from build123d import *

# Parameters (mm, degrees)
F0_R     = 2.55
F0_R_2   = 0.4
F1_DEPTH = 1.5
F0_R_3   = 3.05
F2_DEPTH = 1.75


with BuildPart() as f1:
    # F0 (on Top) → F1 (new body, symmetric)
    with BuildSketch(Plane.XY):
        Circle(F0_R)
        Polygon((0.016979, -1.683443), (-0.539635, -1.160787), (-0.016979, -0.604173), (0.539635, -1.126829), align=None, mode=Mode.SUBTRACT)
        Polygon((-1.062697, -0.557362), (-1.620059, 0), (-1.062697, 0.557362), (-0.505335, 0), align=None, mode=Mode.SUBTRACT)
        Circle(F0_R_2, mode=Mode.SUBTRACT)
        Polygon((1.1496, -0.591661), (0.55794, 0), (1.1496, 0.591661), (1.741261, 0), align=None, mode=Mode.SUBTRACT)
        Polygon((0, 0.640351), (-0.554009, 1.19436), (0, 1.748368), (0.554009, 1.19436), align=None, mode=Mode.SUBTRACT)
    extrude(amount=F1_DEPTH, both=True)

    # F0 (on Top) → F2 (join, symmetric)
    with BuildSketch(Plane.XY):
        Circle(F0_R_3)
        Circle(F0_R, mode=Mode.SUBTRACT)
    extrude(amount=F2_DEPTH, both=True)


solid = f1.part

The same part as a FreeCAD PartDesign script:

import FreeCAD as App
import Part
import Sketcher
from FreeCAD import Vector


def add_polygon(sketch, points):
    """Adds a closed chain of lines whose ends are joined by coincident constraints."""
    first, n = sketch.GeometryCount, len(points)
    for a, b in zip(points, points[1:] + points[:1]):
        sketch.addGeometry(Part.LineSegment(App.Vector(*a, 0), App.Vector(*b, 0)), False)
    for i in range(n):
        sketch.addConstraint(Sketcher.Constraint("Coincident", first + i, 2, first + (i + 1) % n, 1))

doc = App.newDocument("Part")
body = doc.addObject("PartDesign::Body", "Body")

# Sketch on XY plane
sketch1 = body.newObject("Sketcher::SketchObject", "Sketch")
sketch1.AttachmentSupport = (doc.getObject("XY_Plane"), [""])
sketch1.MapMode = "FlatFace"
sketch1.addGeometry(Part.Circle(Vector(0, 0, 0), Vector(0, 0, 1), 2.55), False)  # 0
add_polygon(sketch1, [(0.539635, -1.126829), (0.016979, -1.683443), (-0.539635, -1.160787), (-0.016979, -0.604173)])  # lines 1-4
add_polygon(sketch1, [(-0.505335, 0), (-1.062697, -0.557362), (-1.620059, 0), (-1.062697, 0.557362)])  # lines 5-8
sketch1.addGeometry(Part.Circle(Vector(0, 0, 0), Vector(0, 0, 1), 0.4), False)  # 9
add_polygon(sketch1, [(1.741261, 0), (1.1496, -0.591661), (0.55794, 0), (1.1496, 0.591661)])  # lines 10-13
add_polygon(sketch1, [(0.554009, 1.19436), (0, 0.640351), (-0.554009, 1.19436), (0, 1.748368)])  # lines 14-17
sketch1.addConstraint(Sketcher.Constraint("Coincident", 0, 3, -1, 1))
sketch1.addConstraint(Sketcher.Constraint("Coincident", 9, 3, -1, 1))
sketch1.addConstraint(Sketcher.Constraint("Symmetric", 15, 2, 17, 2, -2))
sketch1.addConstraint(Sketcher.Constraint("Symmetric", 5, 2, 7, 2, -1))
sketch1.addConstraint(Sketcher.Constraint("Symmetric", 10, 2, 12, 2, -1))
sketch1.addConstraint(Sketcher.Constraint("PointOnObject", 6, 2, -1))
sketch1.addConstraint(Sketcher.Constraint("PointOnObject", 8, 2, -1))
sketch1.addConstraint(Sketcher.Constraint("PointOnObject", 11, 2, -1))
sketch1.addConstraint(Sketcher.Constraint("PointOnObject", 13, 2, -1))
sketch1.addConstraint(Sketcher.Constraint("PointOnObject", 14, 2, -2))
sketch1.addConstraint(Sketcher.Constraint("PointOnObject", 16, 2, -2))
sketch1.addConstraint(Sketcher.Constraint("Perpendicular", 1, 2))
sketch1.addConstraint(Sketcher.Constraint("Perpendicular", 2, 3))
sketch1.addConstraint(Sketcher.Constraint("Perpendicular", 3, 4))
sketch1.addConstraint(Sketcher.Constraint("Perpendicular", 5, 6))
sketch1.addConstraint(Sketcher.Constraint("Perpendicular", 6, 7))
sketch1.addConstraint(Sketcher.Constraint("Perpendicular", 8, 10))
sketch1.addConstraint(Sketcher.Constraint("Perpendicular", 10, 11))
sketch1.addConstraint(Sketcher.Constraint("Perpendicular", 13, 14))
sketch1.addConstraint(Sketcher.Constraint("Perpendicular", 15, 16))
sketch1.addConstraint(Sketcher.Constraint("Equal", 1, 2))
sketch1.addConstraint(Sketcher.Constraint("Diameter", 0, 5.1))
sketch1.addConstraint(Sketcher.Constraint("Diameter", 9, 0.8))
sketch1.addConstraint(Sketcher.Constraint("DistanceY", 7, 2, 15, 2, 0.636998))
sketch1.addConstraint(Sketcher.Constraint("DistanceX", -1, 1, 10, 2, 1.1496))
sketch1.addConstraint(Sketcher.Constraint("DistanceY", 12, 2, 17, 2, 0.602699))
sketch1.addConstraint(Sketcher.Constraint("Distance", 5, 0.788229))
sketch1.addConstraint(Sketcher.Constraint("DistanceX", -1, 1, 1, 2, 0.016979))
sketch1.addConstraint(Sketcher.Constraint("DistanceX", 3, 2, -1, 1, 0.016979))
sketch1.addConstraint(Sketcher.Constraint("DistanceY", 4, 2, -1, 1, 1.126829))
sketch1.addConstraint(Sketcher.Constraint("DistanceX", 6, 2, -1, 1, 1.620059))
sketch1.addConstraint(Sketcher.Constraint("DistanceY", -1, 1, 14, 2, 0.640351))
sketch1.addConstraint(Sketcher.Constraint("DistanceY", 1, 2, 3, 2, 1.07927))
pad1 = body.newObject("PartDesign::Pad", "Pad")
pad1.Profile = sketch1
pad1.Length = 3
pad1.Midplane = True

# Sketch on XY plane
sketch2 = body.newObject("Sketcher::SketchObject", "Sketch001")
sketch2.AttachmentSupport = (doc.getObject("XY_Plane"), [""])
sketch2.MapMode = "FlatFace"
sketch2.addGeometry(Part.Circle(Vector(0, 0, 0), Vector(0, 0, 1), 3.05), False)
sketch2.addGeometry(Part.Circle(Vector(0, 0, 0), Vector(0, 0, 1), 2.55), False)
sketch2.addConstraint(Sketcher.Constraint("Coincident", 0, 3, -1, 1))
sketch2.addConstraint(Sketcher.Constraint("Coincident", 1, 3, -1, 1))
sketch2.addConstraint(Sketcher.Constraint("Diameter", 0, 6.1))
sketch2.addConstraint(Sketcher.Constraint("Diameter", 1, 5.1))
pad2 = body.newObject("PartDesign::Pad", "Pad001")
pad2.Profile = sketch2
pad2.Length = 3.5
pad2.Midplane = True

doc.recompute()
